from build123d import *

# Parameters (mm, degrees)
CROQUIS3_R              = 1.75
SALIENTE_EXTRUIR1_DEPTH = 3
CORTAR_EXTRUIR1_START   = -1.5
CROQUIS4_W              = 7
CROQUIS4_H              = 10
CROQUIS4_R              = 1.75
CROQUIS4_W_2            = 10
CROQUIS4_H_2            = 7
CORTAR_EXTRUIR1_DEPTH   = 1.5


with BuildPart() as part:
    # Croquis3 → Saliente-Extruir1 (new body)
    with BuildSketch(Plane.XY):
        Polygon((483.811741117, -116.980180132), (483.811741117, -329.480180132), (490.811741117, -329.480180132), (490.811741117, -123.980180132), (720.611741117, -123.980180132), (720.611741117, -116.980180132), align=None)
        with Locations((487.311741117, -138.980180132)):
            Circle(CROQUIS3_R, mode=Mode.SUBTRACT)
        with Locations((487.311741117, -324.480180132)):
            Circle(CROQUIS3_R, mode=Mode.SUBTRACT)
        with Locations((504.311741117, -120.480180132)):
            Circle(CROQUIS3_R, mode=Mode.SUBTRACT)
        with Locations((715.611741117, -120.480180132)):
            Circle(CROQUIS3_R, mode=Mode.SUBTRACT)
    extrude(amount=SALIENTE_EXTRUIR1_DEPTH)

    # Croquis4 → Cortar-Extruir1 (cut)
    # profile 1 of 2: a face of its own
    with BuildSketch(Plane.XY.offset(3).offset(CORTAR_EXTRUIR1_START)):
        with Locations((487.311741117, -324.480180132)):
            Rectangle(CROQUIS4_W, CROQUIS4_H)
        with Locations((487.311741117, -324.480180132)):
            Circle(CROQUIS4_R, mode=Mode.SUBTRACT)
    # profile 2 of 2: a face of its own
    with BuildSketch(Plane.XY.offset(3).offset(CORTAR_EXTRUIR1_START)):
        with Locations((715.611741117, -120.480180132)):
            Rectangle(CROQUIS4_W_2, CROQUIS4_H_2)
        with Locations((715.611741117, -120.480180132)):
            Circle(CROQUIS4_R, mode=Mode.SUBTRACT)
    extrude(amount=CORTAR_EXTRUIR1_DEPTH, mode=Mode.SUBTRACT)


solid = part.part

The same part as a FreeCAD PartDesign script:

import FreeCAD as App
import Part
import Sketcher
from FreeCAD import Vector
Q = App.Units.Quantity


def add_polygon(sketch, points):
    """Adds a closed chain of lines whose ends are joined by coincident constraints."""
    first, n = sketch.GeometryCount, len(points)
    for a, b in zip(points, points[1:] + points[:1]):
        sketch.addGeometry(Part.LineSegment(App.Vector(*a, 0), App.Vector(*b, 0)), False)
    for i in range(n):
        sketch.addConstraint(Sketcher.Constraint("Coincident", first + i, 2, first + (i + 1) % n, 1))

doc = App.newDocument("Part")
params = doc.addObject("Spreadsheet::Sheet", "Params")
for row, (alias, value) in enumerate([
    ("sketch1_diameter", "3.5 mm"),
    ("sketch1_width", "7 mm"),
    ("sketch1_width2", "229.8 mm"),
    ("sketch1_height", "212.5 mm"),
    ("pad1_length", "3 mm"),
    ("sketch2_diameter", "3.5 mm"),
    ("sketch2_width", "7 mm"),
    ("sketch2_width2", "10 mm"),
    ("pocket1_length", "1.5 mm"),
], start=1):
    params.set(f"A{row}", alias)
    params.set(f"B{row}", "=" + value)
    params.setAlias(f"B{row}", alias)

body = doc.addObject("PartDesign::Body", "Body")

# Sketch on XY plane
sketch1 = doc.addObject("Sketcher::SketchObject", "Sketch")
body.addObject(sketch1)
sketch1.AttachmentSupport = (doc.XY_Plane, [""])
sketch1.MapMode = "FlatFace"
add_polygon(sketch1, [(483.8, -117), (483.8, -329.5), (490.8, -329.5), (490.8, -124), (720.6, -124), (720.6, -117)])  # lines 0-5
sketch1.addGeometry(Part.Circle(Vector(487.3, -324.5, 0), Vector(0, 0, 1), 1.8), False)  # 6
sketch1.addGeometry(Part.Circle(Vector(487.3, -139, 0), Vector(0, 0, 1), 1.8), False)  # 7
sketch1.addGeometry(Part.Circle(Vector(504.3, -120.5, 0), Vector(0, 0, 1), 1.8), False)  # 8
sketch1.addGeometry(Part.Circle(Vector(715.6, -120.5, 0), Vector(0, 0, 1), 1.8), False)  # 9
sketch1.addConstraint([
    Sketcher.Constraint("Vertical", 0),
    Sketcher.Constraint("Horizontal", 1),
    Sketcher.Constraint("Vertical", 2),
    Sketcher.Constraint("Horizontal", 3),
    Sketcher.Constraint("Vertical", 4),
    Sketcher.Constraint("Horizontal", 5),
    Sketcher.Constraint("Equal", 6, 7),
    Sketcher.Constraint("Equal", 7, 8),
    Sketcher.Constraint("Equal", 8, 9),
    Sketcher.Constraint("Horizontal", 8, 3, 9, 3),
    Sketcher.Constraint("Vertical", 6, 3, 7, 3),
    Sketcher.Constraint("Equal", 1, 4),
    Sketcher.Constraint("Diameter", 6, Q("3.5 mm")),
    Sketcher.Constraint("DistanceX", 1, 1, 1, 2, Q("7 mm")),
    Sketcher.Constraint("DistanceX", 3, 1, 3, 2, Q("229.8 mm")),
    Sketcher.Constraint("DistanceY", 0, 2, 0, 1, Q("212.5 mm")),
    Sketcher.Constraint("DistanceX", 7, 3, 8, 3, Q("17 mm")),
    Sketcher.Constraint("DistanceY", 6, 3, 8, 3, Q("204 mm")),
    Sketcher.Constraint("DistanceY", 0, 2, 6, 3, Q("5 mm")),
    Sketcher.Constraint("DistanceY", 7, 3, 2, 2, Q("15 mm")),
    Sketcher.Constraint("DistanceX", 9, 3, 3, 2, Q("5 mm")),
    Sketcher.Constraint("DistanceX", 8, 3, 9, 3, Q("211.3 mm")),
    Sketcher.Constraint("DistanceX", -1, 1, 6, 3, Q("487.311741 mm")),
    Sketcher.Constraint("DistanceY", 6, 3, -1, 1, Q("324.48018 mm")),
])
sketch1.setExpression("Constraints[18]", "Params.sketch1_diameter")
sketch1.setExpression("Constraints[19]", "Params.sketch1_width")
sketch1.setExpression("Constraints[20]", "Params.sketch1_width2")
sketch1.setExpression("Constraints[21]", "Params.sketch1_height")
pad1 = doc.addObject("PartDesign::Pad", "Pad")
body.addObject(pad1)
pad1.Profile = sketch1
pad1.setExpression("Length", "Params.pad1_length")

# Sketch on XY plane
sketch2 = doc.addObject("Sketcher::SketchObject", "Sketch001")
body.addObject(sketch2)
sketch2.AttachmentSupport = (doc.XY_Plane, [""])
sketch2.MapMode = "FlatFace"
sketch2.AttachmentOffset = App.Placement(Vector(0, 0, 1.5), App.Rotation())
add_polygon(sketch2, [(483.8, -319.5), (483.8, -329.5), (490.8, -329.5), (490.8, -319.5)])  # lines 0-3
sketch2.addGeometry(Part.Circle(Vector(487.3, -324.5, 0), Vector(0, 0, 1), 1.8), False)  # 4
add_polygon(sketch2, [(710.6, -117), (710.6, -124), (720.6, -124), (720.6, -117)])  # lines 5-8
sketch2.addGeometry(Part.Circle(Vector(715.6, -120.5, 0), Vector(0, 0, 1), 1.8), False)  # 9
sketch2.addConstraint([
    Sketcher.Constraint("Vertical", 0),
    Sketcher.Constraint("Horizontal", 1),
    Sketcher.Constraint("Vertical", 2),
    Sketcher.Constraint("Horizontal", 3),
    Sketcher.Constraint("Vertical", 5),
    Sketcher.Constraint("Horizontal", 6),
    Sketcher.Constraint("Vertical", 7),
    Sketcher.Constraint("Horizontal", 8),
    Sketcher.Constraint("Equal", 4, 9),
    Sketcher.Constraint("Equal", 8, 0),
    Sketcher.Constraint("Equal", 3, 5),
    Sketcher.Constraint("Diameter", 4, Q("3.5 mm")),
    Sketcher.Constraint("DistanceX", 1, 1, 1, 2, Q("7 mm")),
    Sketcher.Constraint("DistanceX", 6, 1, 6, 2, Q("10 mm")),
    Sketcher.Constraint("DistanceY", 4, 3, 9, 3, Q("204 mm")),
    Sketcher.Constraint("DistanceY", 0, 2, 4, 3, Q("5 mm")),
    Sketcher.Constraint("DistanceX", 5, 2, 9, 3, Q("5 mm")),
    Sketcher.Constraint("DistanceX", 4, 3, 9, 3, Q("228.3 mm")),
    Sketcher.Constraint("DistanceX", 0, 2, 4, 3, Q("3.5 mm")),
    Sketcher.Constraint("DistanceY", 5, 2, 9, 3, Q("3.5 mm")),
    Sketcher.Constraint("DistanceX", -1, 1, 4, 3, Q("487.311741 mm")),
    Sketcher.Constraint("DistanceY", 4, 3, -1, 1, Q("324.48018 mm")),
])
sketch2.setExpression("Constraints[19]", "Params.sketch2_diameter")
sketch2.setExpression("Constraints[20]", "Params.sketch2_width")
sketch2.setExpression("Constraints[21]", "Params.sketch2_width2")
pocket1 = doc.addObject("PartDesign::Pocket", "Pocket")
body.addObject(pocket1)
pocket1.Profile = sketch2
pocket1.setExpression("Length", "Params.pocket1_length")
pocket1.Reversed = True

doc.recompute()
